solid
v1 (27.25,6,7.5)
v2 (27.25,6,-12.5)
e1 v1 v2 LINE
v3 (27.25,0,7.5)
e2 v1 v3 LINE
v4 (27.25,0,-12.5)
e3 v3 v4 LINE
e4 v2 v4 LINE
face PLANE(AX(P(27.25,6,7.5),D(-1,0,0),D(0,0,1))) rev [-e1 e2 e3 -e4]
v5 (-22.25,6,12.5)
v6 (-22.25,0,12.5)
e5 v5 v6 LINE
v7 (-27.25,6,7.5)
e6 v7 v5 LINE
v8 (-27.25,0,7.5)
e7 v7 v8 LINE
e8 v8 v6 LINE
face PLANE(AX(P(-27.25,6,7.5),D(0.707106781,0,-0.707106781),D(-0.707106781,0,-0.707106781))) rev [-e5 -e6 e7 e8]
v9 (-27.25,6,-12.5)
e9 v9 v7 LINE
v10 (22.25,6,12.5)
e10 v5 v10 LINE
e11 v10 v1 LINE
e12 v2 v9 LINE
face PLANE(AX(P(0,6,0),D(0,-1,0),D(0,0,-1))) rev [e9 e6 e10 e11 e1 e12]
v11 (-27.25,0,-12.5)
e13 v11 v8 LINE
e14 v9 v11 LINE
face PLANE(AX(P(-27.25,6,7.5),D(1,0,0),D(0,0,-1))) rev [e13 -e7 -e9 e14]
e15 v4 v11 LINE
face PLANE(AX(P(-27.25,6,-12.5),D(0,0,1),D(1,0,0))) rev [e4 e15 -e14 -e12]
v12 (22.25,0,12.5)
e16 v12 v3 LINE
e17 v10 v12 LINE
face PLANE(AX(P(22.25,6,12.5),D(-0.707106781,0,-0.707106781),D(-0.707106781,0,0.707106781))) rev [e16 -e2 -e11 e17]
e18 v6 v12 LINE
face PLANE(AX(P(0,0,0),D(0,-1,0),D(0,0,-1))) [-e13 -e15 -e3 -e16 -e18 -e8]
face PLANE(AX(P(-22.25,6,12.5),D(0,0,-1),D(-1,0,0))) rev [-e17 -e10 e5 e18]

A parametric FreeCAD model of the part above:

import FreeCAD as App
import Part
import Sketcher


def add_polygon(sketch, points):
    """Adds a closed chain of lines whose ends are joined by coincident constraints."""
    first, n = sketch.GeometryCount, len(points)
    for a, b in zip(points, points[1:] + points[:1]):
        sketch.addGeometry(Part.LineSegment(App.Vector(*a, 0), App.Vector(*b, 0)), False)
    for i in range(n):
        sketch.addConstraint(Sketcher.Constraint("Coincident", first + i, 2, first + (i + 1) % n, 1))

doc = App.newDocument("Part")
body = doc.addObject("PartDesign::Body", "Body")

sketch1 = body.newObject("Sketcher::SketchObject", "Sketch")
sketch1.AttachmentSupport = (doc.getObject("XZ_Plane"), [""])
sketch1.MapMode = "FlatFace"
add_polygon(sketch1, [(-27, 8), (-22, 12), (22, 12), (27, 8), (27, -12), (-27, -12)])
sketch1.addConstraint([
    Sketcher.Constraint("Horizontal", 1),
    Sketcher.Constraint("Vertical", 3),
    Sketcher.Constraint("Horizontal", 4),
    Sketcher.Constraint("Vertical", 5),
    Sketcher.Constraint("Symmetric", 2, 2, 5, 2, -2),
    Sketcher.Constraint("Perpendicular", 0, 2),
    Sketcher.Constraint("Equal", 0, 2),
    Sketcher.Constraint("DistanceY", 3, 2, 3, 1, 20.0),
    Sketcher.Constraint("DistanceX", 1, 1, 1, 2, 44.5),
    Sketcher.Constraint("DistanceX", 4, 2, 4, 1, 54.5),
    Sketcher.Constraint("DistanceY", -1, 1, 0, 2, 12.5),
])
pad1 = body.newObject("PartDesign::Pad", "Pad")
pad1.Profile = sketch1
pad1.Length = 6
pad1.Reversed = True

doc.recompute()
